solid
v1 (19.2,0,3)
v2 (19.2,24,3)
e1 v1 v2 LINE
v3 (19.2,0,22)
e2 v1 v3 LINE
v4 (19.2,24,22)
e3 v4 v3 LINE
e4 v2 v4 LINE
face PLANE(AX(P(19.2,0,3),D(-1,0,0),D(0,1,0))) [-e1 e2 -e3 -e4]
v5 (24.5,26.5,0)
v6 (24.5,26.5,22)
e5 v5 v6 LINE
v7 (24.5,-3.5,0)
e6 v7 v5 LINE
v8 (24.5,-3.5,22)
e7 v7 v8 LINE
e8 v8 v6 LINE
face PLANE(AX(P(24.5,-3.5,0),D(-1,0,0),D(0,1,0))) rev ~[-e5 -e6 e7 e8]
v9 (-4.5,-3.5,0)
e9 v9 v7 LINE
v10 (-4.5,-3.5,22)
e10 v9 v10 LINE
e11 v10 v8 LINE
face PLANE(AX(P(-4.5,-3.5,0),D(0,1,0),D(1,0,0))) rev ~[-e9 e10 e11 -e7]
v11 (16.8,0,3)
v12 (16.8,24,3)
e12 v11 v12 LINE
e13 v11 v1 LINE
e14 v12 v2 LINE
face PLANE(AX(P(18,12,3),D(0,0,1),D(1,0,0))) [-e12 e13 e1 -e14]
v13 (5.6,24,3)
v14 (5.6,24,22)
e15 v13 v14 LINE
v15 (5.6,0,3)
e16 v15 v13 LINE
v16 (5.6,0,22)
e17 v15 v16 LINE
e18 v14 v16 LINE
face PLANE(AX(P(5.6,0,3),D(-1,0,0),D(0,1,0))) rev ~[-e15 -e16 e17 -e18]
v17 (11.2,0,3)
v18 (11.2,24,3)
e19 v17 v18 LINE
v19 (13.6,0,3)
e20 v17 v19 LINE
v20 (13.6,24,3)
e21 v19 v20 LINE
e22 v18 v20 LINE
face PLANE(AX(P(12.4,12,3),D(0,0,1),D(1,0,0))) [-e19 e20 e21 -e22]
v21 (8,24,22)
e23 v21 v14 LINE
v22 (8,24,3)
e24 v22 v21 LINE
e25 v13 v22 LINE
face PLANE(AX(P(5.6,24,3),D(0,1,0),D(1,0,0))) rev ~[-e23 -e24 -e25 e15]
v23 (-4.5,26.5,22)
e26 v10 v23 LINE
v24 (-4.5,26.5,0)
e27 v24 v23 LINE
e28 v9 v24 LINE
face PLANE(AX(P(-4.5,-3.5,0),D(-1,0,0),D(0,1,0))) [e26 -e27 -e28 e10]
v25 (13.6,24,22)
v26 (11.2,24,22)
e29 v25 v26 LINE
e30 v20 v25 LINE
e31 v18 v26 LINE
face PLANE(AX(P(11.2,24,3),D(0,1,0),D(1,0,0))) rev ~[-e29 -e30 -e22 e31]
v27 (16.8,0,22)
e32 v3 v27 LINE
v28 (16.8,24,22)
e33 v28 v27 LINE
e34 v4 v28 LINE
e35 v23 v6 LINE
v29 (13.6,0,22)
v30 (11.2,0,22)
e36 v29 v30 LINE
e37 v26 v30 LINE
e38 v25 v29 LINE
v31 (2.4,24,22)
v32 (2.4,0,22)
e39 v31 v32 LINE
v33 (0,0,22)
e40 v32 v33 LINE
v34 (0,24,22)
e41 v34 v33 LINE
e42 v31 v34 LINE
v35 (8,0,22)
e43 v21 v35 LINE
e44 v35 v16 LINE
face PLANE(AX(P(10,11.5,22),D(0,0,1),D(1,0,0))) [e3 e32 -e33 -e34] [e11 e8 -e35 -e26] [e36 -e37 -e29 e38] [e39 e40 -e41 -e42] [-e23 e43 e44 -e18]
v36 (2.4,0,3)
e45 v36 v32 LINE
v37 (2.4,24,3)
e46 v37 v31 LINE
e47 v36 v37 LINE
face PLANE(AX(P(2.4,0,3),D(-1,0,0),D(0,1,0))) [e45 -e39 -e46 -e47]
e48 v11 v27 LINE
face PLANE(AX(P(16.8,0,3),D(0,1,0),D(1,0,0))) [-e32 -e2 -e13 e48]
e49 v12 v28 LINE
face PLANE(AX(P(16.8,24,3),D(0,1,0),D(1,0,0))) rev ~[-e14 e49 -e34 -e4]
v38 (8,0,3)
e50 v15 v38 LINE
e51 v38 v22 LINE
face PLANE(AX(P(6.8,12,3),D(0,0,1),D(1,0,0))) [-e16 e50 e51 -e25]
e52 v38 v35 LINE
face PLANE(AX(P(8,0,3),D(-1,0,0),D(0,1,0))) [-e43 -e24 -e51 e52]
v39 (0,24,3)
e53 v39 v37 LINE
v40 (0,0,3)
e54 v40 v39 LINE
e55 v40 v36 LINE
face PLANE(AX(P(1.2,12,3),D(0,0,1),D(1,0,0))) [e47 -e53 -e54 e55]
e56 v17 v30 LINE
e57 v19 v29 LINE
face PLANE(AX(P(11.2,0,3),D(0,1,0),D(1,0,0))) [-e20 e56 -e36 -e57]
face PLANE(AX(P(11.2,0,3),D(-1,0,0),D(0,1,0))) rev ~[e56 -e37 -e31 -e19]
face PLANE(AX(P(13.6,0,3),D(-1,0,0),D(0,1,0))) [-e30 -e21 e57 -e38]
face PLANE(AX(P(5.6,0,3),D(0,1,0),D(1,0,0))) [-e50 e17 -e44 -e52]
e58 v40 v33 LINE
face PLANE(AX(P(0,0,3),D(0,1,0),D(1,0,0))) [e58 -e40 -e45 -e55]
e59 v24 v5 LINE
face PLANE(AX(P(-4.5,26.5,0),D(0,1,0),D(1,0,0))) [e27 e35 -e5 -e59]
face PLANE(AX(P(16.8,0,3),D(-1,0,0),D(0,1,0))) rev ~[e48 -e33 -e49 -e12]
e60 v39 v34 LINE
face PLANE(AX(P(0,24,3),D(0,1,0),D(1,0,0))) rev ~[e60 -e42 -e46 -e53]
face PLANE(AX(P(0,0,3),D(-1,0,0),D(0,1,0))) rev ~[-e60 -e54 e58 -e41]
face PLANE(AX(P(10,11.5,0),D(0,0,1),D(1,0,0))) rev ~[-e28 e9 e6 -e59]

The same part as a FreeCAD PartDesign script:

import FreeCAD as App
import Part
import Sketcher
from FreeCAD import Vector
Q = App.Units.Quantity


def add_polygon(sketch, points):
    """Adds a closed chain of lines whose ends are joined by coincident constraints."""
    first, n = sketch.GeometryCount, len(points)
    for a, b in zip(points, points[1:] + points[:1]):
        sketch.addGeometry(Part.LineSegment(App.Vector(*a, 0), App.Vector(*b, 0)), False)
    for i in range(n):
        sketch.addConstraint(Sketcher.Constraint("Coincident", first + i, 2, first + (i + 1) % n, 1))

doc = App.newDocument("Part")
body = doc.addObject("PartDesign::Body", "Body")

sketch1 = doc.addObject("Sketcher::SketchObject", "Sketch")
body.addObject(sketch1)
sketch1.AttachmentSupport = (doc.XY_Plane, [""])
sketch1.MapMode = "FlatFace"
add_polygon(sketch1, [(5.6, 24), (5.6, 0), (8, 0), (8, 24)])
sketch1.addConstraint(Sketcher.Constraint("Vertical", 0))
sketch1.addConstraint(Sketcher.Constraint("Horizontal", 1))
sketch1.addConstraint(Sketcher.Constraint("Vertical", 2))
sketch1.addConstraint(Sketcher.Constraint("Horizontal", 3))
sketch1.addConstraint(Sketcher.Constraint("PointOnObject", 0, 2, -1))
sketch1.addConstraint(Sketcher.Constraint("DistanceY", 0, 2, 0, 1, Q("24 mm")))
sketch1.addConstraint(Sketcher.Constraint("DistanceX", 1, 1, 1, 2, Q("2.4 mm")))
sketch1.addConstraint(Sketcher.Constraint("DistanceX", -1, 1, 1, 2, Q("8 mm")))
pad1 = doc.addObject("PartDesign::Pad", "Pad")
body.addObject(pad1)
pad1.Profile = sketch1
pad1.Length = 22
body2 = doc.addObject("PartDesign::Body", "Body001")

sketch2 = doc.addObject("Sketcher::SketchObject", "Sketch001")
body2.addObject(sketch2)
sketch2.AttachmentSupport = (doc.getObject("XY_Plane001"), [""])
sketch2.MapMode = "FlatFace"
add_polygon(sketch2, [(11.2, 24), (11.2, 0), (13.6, 0), (13.6, 24)])
sketch2.addConstraint(Sketcher.Constraint("Vertical", 0))
sketch2.addConstraint(Sketcher.Constraint("Horizontal", 1))
sketch2.addConstraint(Sketcher.Constraint("Vertical", 2))
sketch2.addConstraint(Sketcher.Constraint("Horizontal", 3))
sketch2.addConstraint(Sketcher.Constraint("PointOnObject", 0, 2, -1))
sketch2.addConstraint(Sketcher.Constraint("DistanceY", 0, 2, 0, 1, Q("24 mm")))
sketch2.addConstraint(Sketcher.Constraint("DistanceX", 1, 1, 1, 2, Q("2.4 mm")))
sketch2.addConstraint(Sketcher.Constraint("DistanceX", -1, 1, 0, 2, Q("11.2 mm")))
pad2 = doc.addObject("PartDesign::Pad", "Pad001")
body2.addObject(pad2)
pad2.Profile = sketch2
pad2.Length = 22
body3 = doc.addObject("PartDesign::Body", "Body002")

sketch3 = doc.addObject("Sketcher::SketchObject", "Sketch002")
body3.addObject(sketch3)
sketch3.AttachmentSupport = (doc.getObject("XY_Plane002"), [""])
sketch3.MapMode = "FlatFace"
add_polygon(sketch3, [(16.8, 24), (16.8, 0), (19.2, 0), (19.2, 24)])
sketch3.addConstraint(Sketcher.Constraint("Vertical", 0))
sketch3.addConstraint(Sketcher.Constraint("Horizontal", 1))
sketch3.addConstraint(Sketcher.Constraint("Vertical", 2))
sketch3.addConstraint(Sketcher.Constraint("Horizontal", 3))
sketch3.addConstraint(Sketcher.Constraint("PointOnObject", 0, 2, -1))
sketch3.addConstraint(Sketcher.Constraint("DistanceY", 0, 2, 0, 1, Q("24 mm")))
sketch3.addConstraint(Sketcher.Constraint("DistanceX", 1, 1, 1, 2, Q("2.4 mm")))
sketch3.addConstraint(Sketcher.Constraint("DistanceX", -1, 1, 0, 2, Q("16.8 mm")))
pad3 = doc.addObject("PartDesign::Pad", "Pad002")
body3.addObject(pad3)
pad3.Profile = sketch3
pad3.Length = 22
body4 = doc.addObject("PartDesign::Body", "Body003")
body4.AllowCompound = True

sketch4 = doc.addObject("Sketcher::SketchObject", "Sketch003")
body4.addObject(sketch4)
sketch4.AttachmentSupport = (doc.getObject("XY_Plane003"), [""])
sketch4.MapMode = "FlatFace"
add_polygon(sketch4, [(0, 24), (0, 0), (2.4, 0), (2.4, 24)])
sketch4.addConstraint(Sketcher.Constraint("Vertical", 0))
sketch4.addConstraint(Sketcher.Constraint("Horizontal", 1))
sketch4.addConstraint(Sketcher.Constraint("Vertical", 2))
sketch4.addConstraint(Sketcher.Constraint("Horizontal", 3))
sketch4.addConstraint(Sketcher.Constraint("Coincident", 0, 2, -1, 1))
sketch4.addConstraint(Sketcher.Constraint("DistanceY", 0, 2, 0, 1, Q("24 mm")))
sketch4.addConstraint(Sketcher.Constraint("DistanceX", 1, 1, 1, 2, Q("2.4 mm")))
pad4 = doc.addObject("PartDesign::Pad", "Pad003")
body4.addObject(pad4)
pad4.Profile = sketch4
pad4.Length = 22
doc.recompute()

boolean = doc.addObject("PartDesign::Boolean", "Boolean")
body4.addObject(boolean)
boolean.Type = "Fuse"
boolean.addObjects([body])
doc.recompute()

boolean2 = doc.addObject("PartDesign::Boolean", "Boolean001")
body4.addObject(boolean2)
boolean2.Type = "Fuse"
boolean2.addObjects([body2])
doc.recompute()

boolean3 = doc.addObject("PartDesign::Boolean", "Boolean002")
body4.addObject(boolean3)
boolean3.Type = "Fuse"
boolean3.addObjects([body3])
body5 = doc.addObject("PartDesign::Body", "Body004")
body5.AllowCompound = True
doc.recompute()

body4.Placement = App.Placement(Vector(0, 0, 3), App.Rotation(Vector(0, 0, 1), 0))
boolean4 = doc.addObject("PartDesign::Boolean", "Boolean003")
body5.addObject(boolean4)
boolean4.Type = "Fuse"
boolean4.addObjects([body4])
body6 = doc.addObject("PartDesign::Body", "Body005")

sketch5 = doc.addObject("Sketcher::SketchObject", "Sketch004")
body6.addObject(sketch5)
sketch5.AttachmentSupport = (doc.getObject("XY_Plane005"), [""])
sketch5.MapMode = "FlatFace"
add_polygon(sketch5, [(-4, 26), (-4, -4), (24, -4), (24, 26)])
sketch5.addConstraint(Sketcher.Constraint("Vertical", 0))
sketch5.addConstraint(Sketcher.Constraint("Horizontal", 1))
sketch5.addConstraint(Sketcher.Constraint("Vertical", 2))
sketch5.addConstraint(Sketcher.Constraint("Horizontal", 3))
sketch5.addConstraint(Sketcher.Constraint("DistanceX", 1, 1, 1, 2, Q("29 mm")))
sketch5.addConstraint(Sketcher.Constraint("DistanceY", 0, 2, 0, 1, Q("30 mm")))
sketch5.addConstraint(Sketcher.Constraint("DistanceX", 0, 2, -1, 1, Q("4.5 mm")))
sketch5.addConstraint(Sketcher.Constraint("DistanceY", 0, 2, -1, 1, Q("3.5 mm")))
pad5 = doc.addObject("PartDesign::Pad", "Pad004")
body6.addObject(pad5)
pad5.Profile = sketch5
pad5.Length = 22
doc.recompute()

boolean5 = doc.addObject("PartDesign::Boolean", "Boolean004")
body6.addObject(boolean5)
boolean5.Type = "Cut"
boolean5.addObjects([body5])

doc.recompute()
